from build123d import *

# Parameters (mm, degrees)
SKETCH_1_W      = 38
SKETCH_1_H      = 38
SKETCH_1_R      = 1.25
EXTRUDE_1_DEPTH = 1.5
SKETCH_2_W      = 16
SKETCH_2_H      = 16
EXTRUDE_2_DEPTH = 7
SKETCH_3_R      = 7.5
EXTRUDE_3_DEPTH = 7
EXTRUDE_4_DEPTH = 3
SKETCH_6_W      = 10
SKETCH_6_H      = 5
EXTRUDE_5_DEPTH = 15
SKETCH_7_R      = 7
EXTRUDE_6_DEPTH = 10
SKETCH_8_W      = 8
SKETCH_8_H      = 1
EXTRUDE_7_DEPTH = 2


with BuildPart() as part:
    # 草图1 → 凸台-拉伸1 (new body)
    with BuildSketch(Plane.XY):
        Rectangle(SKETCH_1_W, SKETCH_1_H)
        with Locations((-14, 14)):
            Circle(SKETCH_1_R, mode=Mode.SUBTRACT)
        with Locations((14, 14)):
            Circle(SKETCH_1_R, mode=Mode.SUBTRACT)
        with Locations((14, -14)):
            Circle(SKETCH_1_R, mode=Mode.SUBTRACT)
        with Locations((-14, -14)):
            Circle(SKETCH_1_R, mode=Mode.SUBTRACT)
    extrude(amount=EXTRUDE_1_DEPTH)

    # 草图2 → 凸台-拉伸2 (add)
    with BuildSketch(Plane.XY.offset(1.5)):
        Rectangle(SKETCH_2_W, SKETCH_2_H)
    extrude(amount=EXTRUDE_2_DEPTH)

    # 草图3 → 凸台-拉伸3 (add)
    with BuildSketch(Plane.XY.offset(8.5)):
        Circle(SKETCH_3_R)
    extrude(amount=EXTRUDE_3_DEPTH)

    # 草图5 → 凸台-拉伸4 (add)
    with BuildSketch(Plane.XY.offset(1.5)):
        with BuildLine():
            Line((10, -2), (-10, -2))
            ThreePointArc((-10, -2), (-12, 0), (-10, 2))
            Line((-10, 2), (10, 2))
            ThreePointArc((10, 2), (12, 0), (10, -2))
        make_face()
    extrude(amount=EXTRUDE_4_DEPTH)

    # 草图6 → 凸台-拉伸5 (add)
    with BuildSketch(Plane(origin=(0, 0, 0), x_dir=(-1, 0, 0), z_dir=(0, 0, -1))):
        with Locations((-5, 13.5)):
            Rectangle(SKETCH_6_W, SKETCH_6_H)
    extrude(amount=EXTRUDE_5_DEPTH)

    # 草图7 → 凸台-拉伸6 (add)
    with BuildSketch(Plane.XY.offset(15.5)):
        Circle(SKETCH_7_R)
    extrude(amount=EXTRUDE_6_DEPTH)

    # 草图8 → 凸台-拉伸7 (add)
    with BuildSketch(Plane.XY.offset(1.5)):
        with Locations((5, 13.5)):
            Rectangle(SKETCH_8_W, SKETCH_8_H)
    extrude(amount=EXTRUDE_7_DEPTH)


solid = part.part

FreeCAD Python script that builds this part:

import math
import FreeCAD as App
import Part
import Sketcher
from FreeCAD import Vector
Q = App.Units.Quantity


def add_polygon(sketch, points):
    """Adds a closed chain of lines whose ends are joined by coincident constraints."""
    first, n = sketch.GeometryCount, len(points)
    for a, b in zip(points, points[1:] + points[:1]):
        sketch.addGeometry(Part.LineSegment(App.Vector(*a, 0), App.Vector(*b, 0)), False)
    for i in range(n):
        sketch.addConstraint(Sketcher.Constraint("Coincident", first + i, 2, first + (i + 1) % n, 1))

doc = App.newDocument("Part")
body = doc.addObject("PartDesign::Body", "Body")

# Sketch on XY plane
sketch1 = doc.addObject("Sketcher::SketchObject", "Sketch")
body.addObject(sketch1)
sketch1.AttachmentSupport = (doc.XY_Plane, [""])
sketch1.MapMode = "FlatFace"
add_polygon(sketch1, [(-19, 19), (-19, -19), (19, -19), (19, 19)])  # lines 0-3
sketch1.addGeometry(Part.Circle(Vector(-14, -14, 0), Vector(0, 0, 1), 1.25), False)  # 4
sketch1.addGeometry(Part.Circle(Vector(14, -14, 0), Vector(0, 0, 1), 1.25), False)  # 5
sketch1.addGeometry(Part.Circle(Vector(-14, 14, 0), Vector(0, 0, 1), 1.25), False)  # 6
sketch1.addGeometry(Part.Circle(Vector(14, 14, 0), Vector(0, 0, 1), 1.25), False)  # 7
sketch1.addConstraint([
    Sketcher.Constraint("Vertical", 0),
    Sketcher.Constraint("Horizontal", 1),
    Sketcher.Constraint("Vertical", 2),
    Sketcher.Constraint("Horizontal", 3),
    Sketcher.Constraint("Equal", 4, 5),
    Sketcher.Constraint("Equal", 5, 6),
    Sketcher.Constraint("Equal", 6, 7),
    Sketcher.Constraint("Symmetric", 5, 3, 6, 3, -1, 1),
    Sketcher.Constraint("Symmetric", 4, 3, 7, 3, -1, 1),
    Sketcher.Constraint("Symmetric", 0, 2, 2, 2, -1, 1),
    Sketcher.Constraint("Symmetric", 4, 3, 5, 3, -2),
    Sketcher.Constraint("Equal", 3, 0),
    Sketcher.Constraint("Diameter", 4, Q("2.5 mm")),
    Sketcher.Constraint("DistanceX", 1, 1, 1, 2, Q("38 mm")),
    Sketcher.Constraint("DistanceX", 4, 3, -1, 1, Q("14 mm")),
    Sketcher.Constraint("DistanceY", 4, 3, -1, 1, Q("14 mm")),
])
pad1 = doc.addObject("PartDesign::Pad", "Pad")
body.addObject(pad1)
pad1.Profile = sketch1
pad1.Length = 1.5

# Sketch on XY plane
sketch2 = doc.addObject("Sketcher::SketchObject", "Sketch001")
body.addObject(sketch2)
sketch2.AttachmentSupport = (doc.XY_Plane, [""])
sketch2.MapMode = "FlatFace"
sketch2.AttachmentOffset = App.Placement(Vector(0, 0, 1.5), App.Rotation())
add_polygon(sketch2, [(-8, 8), (-8, -8), (8, -8), (8, 8)])  # lines 0-3
sketch2.addConstraint([
    Sketcher.Constraint("Vertical", 0),
    Sketcher.Constraint("Horizontal", 1),
    Sketcher.Constraint("Vertical", 2),
    Sketcher.Constraint("Horizontal", 3),
    Sketcher.Constraint("Symmetric", 0, 2, 2, 2, -1, 1),
    Sketcher.Constraint("Equal", 3, 0),
    Sketcher.Constraint("DistanceX", 1, 1, 1, 2, Q("16 mm")),
])
pad2 = doc.addObject("PartDesign::Pad", "Pad001")
body.addObject(pad2)
pad2.Profile = sketch2
pad2.Length = 7

# Sketch on XY plane
sketch3 = doc.addObject("Sketcher::SketchObject", "Sketch002")
body.addObject(sketch3)
sketch3.AttachmentSupport = (doc.XY_Plane, [""])
sketch3.MapMode = "FlatFace"
sketch3.AttachmentOffset = App.Placement(Vector(0, 0, 8.5), App.Rotation())
sketch3.addGeometry(Part.Circle(Vector(0, 0, 0), Vector(0, 0, 1), 7.5), False)
sketch3.addConstraint([
    Sketcher.Constraint("Coincident", 0, 3, -1, 1),
    Sketcher.Constraint("Diameter", 0, Q("15 mm")),
])
pad3 = doc.addObject("PartDesign::Pad", "Pad002")
body.addObject(pad3)
pad3.Profile = sketch3
pad3.Length = 7

# Sketch on XY plane
sketch4 = doc.addObject("Sketcher::SketchObject", "Sketch003")
body.addObject(sketch4)
sketch4.AttachmentSupport = (doc.XY_Plane, [""])
sketch4.MapMode = "FlatFace"
sketch4.AttachmentOffset = App.Placement(Vector(0, 0, 1.5), App.Rotation())
sketch4.addGeometry([
    Part.LineSegment(Vector(-10, -2, 0), Vector(10, -2, 0)),
    Part.ArcOfCircle(Part.Circle(Vector(10, 0, 0), Vector(0, 0, 1), 2), math.radians(-90), math.radians(90)),
    Part.LineSegment(Vector(10, 2, 0), Vector(-10, 2, 0)),
    Part.ArcOfCircle(Part.Circle(Vector(-10, 0, 0), Vector(0, 0, 1), 2), math.radians(90), math.radians(270)),
], False)
sketch4.addConstraint([
    Sketcher.Constraint("Tangent", 0, 2, 1, 1),
    Sketcher.Constraint("Tangent", 1, 2, 2, 1),
    Sketcher.Constraint("Tangent", 2, 2, 3, 1),
    Sketcher.Constraint("Tangent", 3, 2, 0, 1),
    Sketcher.Constraint("Horizontal", 0),
    Sketcher.Constraint("Horizontal", 2),
    Sketcher.Constraint("Symmetric", 1, 3, 3, 3, -1, 1),
    Sketcher.Constraint("Radius", 1, Q("2 mm")),
    Sketcher.Constraint("DistanceX", 0, 1, 0, 2, Q("20 mm")),
])
pad4 = doc.addObject("PartDesign::Pad", "Pad003")
body.addObject(pad4)
pad4.Profile = sketch4
pad4.Length = 3

# Sketch on XY plane
sketch5 = doc.addObject("Sketcher::SketchObject", "Sketch004")
body.addObject(sketch5)
sketch5.AttachmentSupport = (doc.XY_Plane, [""])
sketch5.MapMode = "FlatFace"
add_polygon(sketch5, [(10, 16), (10, 11), (0, 11), (0, 16)])  # lines 0-3
sketch5.addConstraint([
    Sketcher.Constraint("Vertical", 0),
    Sketcher.Constraint("Horizontal", 1),
    Sketcher.Constraint("Vertical", 2),
    Sketcher.Constraint("Horizontal", 3),
    Sketcher.Constraint("PointOnObject", 1, 2, -2),
    Sketcher.Constraint("DistanceX", 1, 2, 1, 1, Q("10 mm")),
    Sketcher.Constraint("DistanceY", 0, 2, 0, 1, Q("5 mm")),
    Sketcher.Constraint("DistanceY", -1, 1, 0, 2, Q("11 mm")),
])
pad5 = doc.addObject("PartDesign::Pad", "Pad004")
body.addObject(pad5)
pad5.Profile = sketch5
pad5.Length = 15
pad5.Reversed = True

# Sketch on XY plane
sketch6 = doc.addObject("Sketcher::SketchObject", "Sketch005")
body.addObject(sketch6)
sketch6.AttachmentSupport = (doc.XY_Plane, [""])
sketch6.MapMode = "FlatFace"
sketch6.AttachmentOffset = App.Placement(Vector(0, 0, 15.5), App.Rotation())
sketch6.addGeometry(Part.Circle(Vector(0, 0, 0), Vector(0, 0, 1), 7), False)
sketch6.addConstraint([
    Sketcher.Constraint("Coincident", 0, 3, -1, 1),
    Sketcher.Constraint("Diameter", 0, Q("14 mm")),
])
pad6 = doc.addObject("PartDesign::Pad", "Pad005")
body.addObject(pad6)
pad6.Profile = sketch6
pad6.Length = 10

# Sketch on XY plane
sketch7 = doc.addObject("Sketcher::SketchObject", "Sketch006")
body.addObject(sketch7)
sketch7.AttachmentSupport = (doc.XY_Plane, [""])
sketch7.MapMode = "FlatFace"
sketch7.AttachmentOffset = App.Placement(Vector(0, 0, 1.5), App.Rotation())
add_polygon(sketch7, [(1, 14), (1, 13), (9, 13), (9, 14)])  # lines 0-3
sketch7.addConstraint([
    Sketcher.Constraint("Vertical", 0),
    Sketcher.Constraint("Horizontal", 1),
    Sketcher.Constraint("Vertical", 2),
    Sketcher.Constraint("Horizontal", 3),
    Sketcher.Constraint("DistanceX", 1, 1, 1, 2, Q("8 mm")),
    Sketcher.Constraint("DistanceY", 0, 2, 0, 1, Q("1 mm")),
    Sketcher.Constraint("DistanceX", -1, 1, 0, 2, Q("1 mm")),
    Sketcher.Constraint("DistanceY", -1, 1, 0, 2, Q("13 mm")),
])
pad7 = doc.addObject("PartDesign::Pad", "Pad006")
body.addObject(pad7)
pad7.Profile = sketch7
pad7.Length = 2

doc.recompute()
